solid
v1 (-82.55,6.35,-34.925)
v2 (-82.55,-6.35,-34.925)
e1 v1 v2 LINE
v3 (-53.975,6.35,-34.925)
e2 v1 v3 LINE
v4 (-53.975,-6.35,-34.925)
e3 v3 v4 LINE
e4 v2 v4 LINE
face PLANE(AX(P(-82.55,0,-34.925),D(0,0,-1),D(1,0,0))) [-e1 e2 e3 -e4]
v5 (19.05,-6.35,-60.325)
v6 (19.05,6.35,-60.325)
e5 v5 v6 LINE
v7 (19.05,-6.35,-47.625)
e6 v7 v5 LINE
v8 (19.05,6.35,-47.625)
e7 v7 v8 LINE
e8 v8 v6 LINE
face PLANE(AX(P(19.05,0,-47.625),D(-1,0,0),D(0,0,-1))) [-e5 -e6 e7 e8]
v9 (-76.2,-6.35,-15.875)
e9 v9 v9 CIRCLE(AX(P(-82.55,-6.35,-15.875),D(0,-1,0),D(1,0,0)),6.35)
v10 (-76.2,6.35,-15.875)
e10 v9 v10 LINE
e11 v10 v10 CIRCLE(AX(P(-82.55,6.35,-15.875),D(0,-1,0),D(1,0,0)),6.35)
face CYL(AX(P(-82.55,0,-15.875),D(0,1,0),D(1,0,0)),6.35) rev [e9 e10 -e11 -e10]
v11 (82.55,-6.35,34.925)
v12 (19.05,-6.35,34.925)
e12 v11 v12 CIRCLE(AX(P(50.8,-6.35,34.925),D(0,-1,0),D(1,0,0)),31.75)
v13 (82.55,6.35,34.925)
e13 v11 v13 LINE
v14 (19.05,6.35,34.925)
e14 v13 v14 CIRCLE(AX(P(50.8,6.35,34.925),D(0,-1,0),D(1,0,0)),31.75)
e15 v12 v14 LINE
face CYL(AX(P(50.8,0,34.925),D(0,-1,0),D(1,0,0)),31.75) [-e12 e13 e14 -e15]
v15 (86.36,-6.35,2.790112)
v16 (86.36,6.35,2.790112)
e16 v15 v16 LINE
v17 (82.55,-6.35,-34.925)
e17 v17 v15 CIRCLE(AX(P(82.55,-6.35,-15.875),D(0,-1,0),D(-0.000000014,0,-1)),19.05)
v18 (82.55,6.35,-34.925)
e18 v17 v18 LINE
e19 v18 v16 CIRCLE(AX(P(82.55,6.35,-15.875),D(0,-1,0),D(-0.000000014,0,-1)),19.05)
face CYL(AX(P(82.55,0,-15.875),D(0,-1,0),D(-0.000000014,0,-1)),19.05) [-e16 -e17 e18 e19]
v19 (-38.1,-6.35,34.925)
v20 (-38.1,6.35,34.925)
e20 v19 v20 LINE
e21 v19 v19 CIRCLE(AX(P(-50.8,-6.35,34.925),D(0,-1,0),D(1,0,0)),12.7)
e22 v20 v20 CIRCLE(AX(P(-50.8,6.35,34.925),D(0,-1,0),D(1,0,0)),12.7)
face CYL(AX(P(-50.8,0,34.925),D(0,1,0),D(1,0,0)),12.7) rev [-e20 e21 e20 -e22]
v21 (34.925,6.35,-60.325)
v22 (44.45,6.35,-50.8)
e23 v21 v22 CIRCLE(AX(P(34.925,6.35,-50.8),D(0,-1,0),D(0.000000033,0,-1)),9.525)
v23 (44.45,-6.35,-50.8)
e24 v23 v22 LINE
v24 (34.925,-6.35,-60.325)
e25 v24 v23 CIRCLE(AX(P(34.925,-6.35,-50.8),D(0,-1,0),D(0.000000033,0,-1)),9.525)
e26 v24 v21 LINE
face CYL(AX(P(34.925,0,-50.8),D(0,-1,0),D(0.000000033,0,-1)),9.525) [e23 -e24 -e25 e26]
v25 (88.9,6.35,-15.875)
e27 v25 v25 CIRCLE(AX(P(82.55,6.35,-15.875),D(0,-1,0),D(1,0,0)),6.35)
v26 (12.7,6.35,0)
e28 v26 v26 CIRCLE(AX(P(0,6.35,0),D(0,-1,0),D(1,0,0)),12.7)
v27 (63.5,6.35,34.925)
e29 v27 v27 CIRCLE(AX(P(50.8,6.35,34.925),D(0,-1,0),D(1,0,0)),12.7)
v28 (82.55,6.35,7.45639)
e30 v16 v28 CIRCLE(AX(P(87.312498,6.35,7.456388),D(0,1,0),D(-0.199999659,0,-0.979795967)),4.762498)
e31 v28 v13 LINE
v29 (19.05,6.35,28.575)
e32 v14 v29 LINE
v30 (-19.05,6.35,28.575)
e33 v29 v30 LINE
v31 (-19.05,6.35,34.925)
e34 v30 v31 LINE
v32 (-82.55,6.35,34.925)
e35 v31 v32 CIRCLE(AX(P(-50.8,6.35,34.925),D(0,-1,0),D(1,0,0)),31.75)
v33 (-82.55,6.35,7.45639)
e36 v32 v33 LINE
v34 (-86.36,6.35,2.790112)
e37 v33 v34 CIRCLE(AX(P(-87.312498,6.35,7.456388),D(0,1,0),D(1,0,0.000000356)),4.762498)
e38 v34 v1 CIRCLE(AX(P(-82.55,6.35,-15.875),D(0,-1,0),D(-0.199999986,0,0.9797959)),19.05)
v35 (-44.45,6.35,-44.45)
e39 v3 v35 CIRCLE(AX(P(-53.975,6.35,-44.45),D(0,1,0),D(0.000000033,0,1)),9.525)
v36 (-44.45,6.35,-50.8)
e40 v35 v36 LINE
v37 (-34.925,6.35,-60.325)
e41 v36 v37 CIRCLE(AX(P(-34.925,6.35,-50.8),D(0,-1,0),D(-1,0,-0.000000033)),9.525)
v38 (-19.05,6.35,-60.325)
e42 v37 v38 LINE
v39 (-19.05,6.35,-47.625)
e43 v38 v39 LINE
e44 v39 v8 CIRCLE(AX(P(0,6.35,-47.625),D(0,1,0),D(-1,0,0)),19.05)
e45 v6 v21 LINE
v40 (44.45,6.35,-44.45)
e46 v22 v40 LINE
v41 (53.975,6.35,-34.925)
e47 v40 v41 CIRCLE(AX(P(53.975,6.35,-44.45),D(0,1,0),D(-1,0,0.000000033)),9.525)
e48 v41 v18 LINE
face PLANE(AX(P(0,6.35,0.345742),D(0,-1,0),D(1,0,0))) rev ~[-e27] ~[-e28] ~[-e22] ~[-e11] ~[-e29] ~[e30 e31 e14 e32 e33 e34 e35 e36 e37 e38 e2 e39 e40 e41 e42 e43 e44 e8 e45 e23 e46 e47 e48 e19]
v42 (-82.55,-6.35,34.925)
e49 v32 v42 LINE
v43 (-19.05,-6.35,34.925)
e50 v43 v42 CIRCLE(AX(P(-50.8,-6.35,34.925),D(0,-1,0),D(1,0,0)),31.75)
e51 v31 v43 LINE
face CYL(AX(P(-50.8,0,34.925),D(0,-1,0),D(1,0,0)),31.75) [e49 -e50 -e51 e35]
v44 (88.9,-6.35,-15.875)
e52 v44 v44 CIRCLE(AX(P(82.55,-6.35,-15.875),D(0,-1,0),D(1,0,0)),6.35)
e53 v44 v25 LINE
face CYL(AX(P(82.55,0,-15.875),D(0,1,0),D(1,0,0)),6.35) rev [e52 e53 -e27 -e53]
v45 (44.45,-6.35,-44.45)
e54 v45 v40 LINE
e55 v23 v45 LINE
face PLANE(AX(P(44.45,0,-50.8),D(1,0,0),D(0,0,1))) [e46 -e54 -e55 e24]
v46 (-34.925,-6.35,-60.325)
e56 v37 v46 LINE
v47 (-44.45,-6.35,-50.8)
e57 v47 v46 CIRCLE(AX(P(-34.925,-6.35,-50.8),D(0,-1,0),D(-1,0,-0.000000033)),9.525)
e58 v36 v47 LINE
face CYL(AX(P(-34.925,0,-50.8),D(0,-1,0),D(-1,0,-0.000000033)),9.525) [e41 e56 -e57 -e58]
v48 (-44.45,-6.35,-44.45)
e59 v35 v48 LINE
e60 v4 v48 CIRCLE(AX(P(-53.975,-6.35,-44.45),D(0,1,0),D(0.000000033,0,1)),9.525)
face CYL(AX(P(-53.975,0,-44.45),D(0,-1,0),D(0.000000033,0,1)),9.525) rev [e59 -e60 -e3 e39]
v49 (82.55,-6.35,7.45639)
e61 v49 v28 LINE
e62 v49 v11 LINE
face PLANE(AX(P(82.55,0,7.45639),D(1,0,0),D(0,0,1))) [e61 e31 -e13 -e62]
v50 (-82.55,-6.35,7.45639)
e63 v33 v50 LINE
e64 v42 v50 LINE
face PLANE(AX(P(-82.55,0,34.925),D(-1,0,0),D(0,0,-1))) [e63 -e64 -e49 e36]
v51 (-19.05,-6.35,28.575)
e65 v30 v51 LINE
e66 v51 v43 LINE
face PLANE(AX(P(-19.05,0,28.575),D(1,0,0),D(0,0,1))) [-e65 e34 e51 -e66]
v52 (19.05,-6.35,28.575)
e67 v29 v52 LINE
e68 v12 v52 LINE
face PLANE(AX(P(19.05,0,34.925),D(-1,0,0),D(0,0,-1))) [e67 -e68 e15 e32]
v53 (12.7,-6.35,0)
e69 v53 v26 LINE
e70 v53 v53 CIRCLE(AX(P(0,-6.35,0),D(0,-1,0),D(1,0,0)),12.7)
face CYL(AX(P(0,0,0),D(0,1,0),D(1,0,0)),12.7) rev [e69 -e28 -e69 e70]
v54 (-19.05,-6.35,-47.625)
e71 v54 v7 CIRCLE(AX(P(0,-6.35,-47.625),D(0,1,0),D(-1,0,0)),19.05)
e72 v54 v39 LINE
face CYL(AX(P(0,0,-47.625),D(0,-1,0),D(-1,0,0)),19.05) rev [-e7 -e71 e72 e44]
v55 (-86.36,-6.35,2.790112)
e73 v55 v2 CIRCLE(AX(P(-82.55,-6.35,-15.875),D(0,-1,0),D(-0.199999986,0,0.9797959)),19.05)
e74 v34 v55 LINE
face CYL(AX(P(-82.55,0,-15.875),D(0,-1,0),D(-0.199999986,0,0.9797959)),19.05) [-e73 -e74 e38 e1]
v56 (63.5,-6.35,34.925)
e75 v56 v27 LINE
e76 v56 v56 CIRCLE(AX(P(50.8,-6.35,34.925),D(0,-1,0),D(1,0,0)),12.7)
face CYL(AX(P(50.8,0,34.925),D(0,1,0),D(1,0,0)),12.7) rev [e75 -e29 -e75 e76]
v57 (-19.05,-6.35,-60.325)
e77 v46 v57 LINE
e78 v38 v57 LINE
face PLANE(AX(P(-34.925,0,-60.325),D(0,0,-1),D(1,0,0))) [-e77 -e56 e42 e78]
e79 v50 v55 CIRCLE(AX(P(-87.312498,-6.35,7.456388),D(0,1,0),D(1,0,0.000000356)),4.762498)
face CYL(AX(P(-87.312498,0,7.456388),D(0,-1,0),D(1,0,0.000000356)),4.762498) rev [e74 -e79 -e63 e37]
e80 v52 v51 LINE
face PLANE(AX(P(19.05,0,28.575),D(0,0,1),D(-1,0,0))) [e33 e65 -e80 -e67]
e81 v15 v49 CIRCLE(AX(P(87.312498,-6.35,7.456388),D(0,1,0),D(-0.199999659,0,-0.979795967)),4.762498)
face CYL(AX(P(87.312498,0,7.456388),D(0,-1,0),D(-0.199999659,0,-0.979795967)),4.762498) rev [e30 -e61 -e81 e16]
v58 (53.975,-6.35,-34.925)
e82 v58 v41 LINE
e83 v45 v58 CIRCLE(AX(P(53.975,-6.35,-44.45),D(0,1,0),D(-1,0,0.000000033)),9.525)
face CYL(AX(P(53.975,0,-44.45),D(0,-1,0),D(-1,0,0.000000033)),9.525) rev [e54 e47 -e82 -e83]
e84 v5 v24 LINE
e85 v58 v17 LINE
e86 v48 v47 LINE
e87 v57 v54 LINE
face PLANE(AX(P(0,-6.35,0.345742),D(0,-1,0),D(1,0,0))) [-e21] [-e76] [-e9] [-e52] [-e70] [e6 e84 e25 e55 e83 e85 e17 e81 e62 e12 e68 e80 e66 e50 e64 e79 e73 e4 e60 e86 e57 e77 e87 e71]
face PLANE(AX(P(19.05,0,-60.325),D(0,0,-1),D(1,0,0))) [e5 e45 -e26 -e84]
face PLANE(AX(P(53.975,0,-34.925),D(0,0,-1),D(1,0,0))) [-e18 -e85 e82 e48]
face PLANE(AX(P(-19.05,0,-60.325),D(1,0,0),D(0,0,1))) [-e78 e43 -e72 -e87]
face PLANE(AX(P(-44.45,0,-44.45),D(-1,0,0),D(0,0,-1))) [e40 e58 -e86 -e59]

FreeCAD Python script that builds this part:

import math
import FreeCAD as App
import Part
import Sketcher
Q = App.Units.Quantity

doc = App.newDocument("Part")
params = doc.addObject("Spreadsheet::Sheet", "Params")
for row, (alias, value) in enumerate([
    ("sketch1_diameter", "1 in"),
    ("sketch1_diameter2", "0.5 in"),
    ("sketch1_radius", "1.25 in"),
    ("sketch1_radius2", "0.75 in"),
    ("sketch1_height", "0.5 in"),
    ("pad1_length", "0.5 in"),
], start=1):
    params.set(f"A{row}", alias)
    params.set(f"B{row}", "=" + value)
    params.setAlias(f"B{row}", alias)

body = doc.addObject("PartDesign::Body", "Body")

sketch1 = body.newObject("Sketcher::SketchObject", "Sketch")
sketch1.AttachmentSupport = (doc.getObject("XZ_Plane"), [""])
sketch1.MapMode = "FlatFace"
sketch1.addGeometry([
    Part.LineSegment(App.Vector(19.1, 34.9, 0), App.Vector(19.1, 28.6, 0)),
    Part.LineSegment(App.Vector(19.1, 28.6, 0), App.Vector(-19.1, 28.6, 0)),
    Part.LineSegment(App.Vector(-19.1, 28.6, 0), App.Vector(-19.1, 34.9, 0)),
    Part.ArcOfCircle(Part.Circle(App.Vector(-50.8, 34.9, 0), App.Vector(0, 0, 1), 31.8), math.radians(0), math.radians(180)),
    Part.LineSegment(App.Vector(-82.5, 34.9, 0), App.Vector(-82.5, 7.5, 0)),
    Part.ArcOfCircle(Part.Circle(App.Vector(-87.3, 7.5, 0), App.Vector(0, 0, 1), 4.8), math.radians(-78), math.radians(0)),
    Part.ArcOfCircle(Part.Circle(App.Vector(-82.6, -15.9, 0), App.Vector(0, 0, 1), 19.1), math.radians(102), math.radians(270)),
    Part.LineSegment(App.Vector(-82.5, -34.9, 0), App.Vector(-54, -34.9, 0)),
    Part.ArcOfCircle(Part.Circle(App.Vector(-54, -44.5, 0), App.Vector(0, 0, 1), 9.5), math.radians(0), math.radians(90)),
    Part.LineSegment(App.Vector(-44.5, -44.5, 0), App.Vector(-44.5, -50.8, 0)),
    Part.ArcOfCircle(Part.Circle(App.Vector(-34.9, -50.8, 0), App.Vector(0, 0, 1), 9.5), math.radians(-180), math.radians(-90)),
    Part.LineSegment(App.Vector(-34.9, -60.3, 0), App.Vector(-19.1, -60.3, 0)),
    Part.LineSegment(App.Vector(-19.1, -60.3, 0), App.Vector(-19.1, -47.6, 0)),
    Part.ArcOfCircle(Part.Circle(App.Vector(0, -47.6, 0), App.Vector(0, 0, 1), 19.1), math.radians(0), math.radians(180)),
    Part.LineSegment(App.Vector(19.1, -47.6, 0), App.Vector(19.1, -60.3, 0)),
    Part.LineSegment(App.Vector(19.1, -60.3, 0), App.Vector(34.9, -60.3, 0)),
    Part.ArcOfCircle(Part.Circle(App.Vector(34.9, -50.8, 0), App.Vector(0, 0, 1), 9.5), math.radians(-90), math.radians(0)),
    Part.LineSegment(App.Vector(44.5, -50.8, 0), App.Vector(44.5, -44.5, 0)),
    Part.ArcOfCircle(Part.Circle(App.Vector(54, -44.5, 0), App.Vector(0, 0, 1), 9.5), math.radians(90), math.radians(180)),
    Part.LineSegment(App.Vector(54, -34.9, 0), App.Vector(82.5, -34.9, 0)),
    Part.ArcOfCircle(Part.Circle(App.Vector(82.6, -15.9, 0), App.Vector(0, 0, 1), 19.1), math.radians(-90), math.radians(78)),
    Part.ArcOfCircle(Part.Circle(App.Vector(87.3, 7.5, 0), App.Vector(0, 0, 1), 4.8), math.radians(180), math.radians(258)),
    Part.LineSegment(App.Vector(82.5, 7.5, 0), App.Vector(82.5, 34.9, 0)),
    Part.ArcOfCircle(Part.Circle(App.Vector(50.8, 34.9, 0), App.Vector(0, 0, 1), 31.8), math.radians(0), math.radians(180)),
    Part.Circle(App.Vector(-82.5, -15.9, 0), App.Vector(0, 0, 1), 6.3),
    Part.Circle(App.Vector(82.5, -15.9, 0), App.Vector(0, 0, 1), 6.3),
    Part.Circle(App.Vector(0, 0, 0), App.Vector(0, 0, 1), 12.7),
    Part.Circle(App.Vector(-50.8, 34.9, 0), App.Vector(0, 0, 1), 12.7),
    Part.Circle(App.Vector(50.8, 34.9, 0), App.Vector(0, 0, 1), 12.7),
], False)
sketch1.addConstraint([
    Sketcher.Constraint("Coincident", 0, 2, 1, 1),
    Sketcher.Constraint("Coincident", 1, 2, 2, 1),
    Sketcher.Constraint("Tangent", 2, 2, 3, 1),
    Sketcher.Constraint("Tangent", 3, 2, 4, 1),
    Sketcher.Constraint("Tangent", 4, 2, 5, 2),
    Sketcher.Constraint("Tangent", 5, 1, 6, 1),
    Sketcher.Constraint("Tangent", 6, 2, 7, 1),
    Sketcher.Constraint("Tangent", 7, 2, 8, 2),
    Sketcher.Constraint("Tangent", 8, 1, 9, 1),
    Sketcher.Constraint("Tangent", 9, 2, 10, 1),
    Sketcher.Constraint("Tangent", 10, 2, 11, 1),
    Sketcher.Constraint("Coincident", 11, 2, 12, 1),
    Sketcher.Constraint("Tangent", 12, 2, 13, 2),
    Sketcher.Constraint("Tangent", 13, 1, 14, 1),
    Sketcher.Constraint("Coincident", 14, 2, 15, 1),
    Sketcher.Constraint("Tangent", 15, 2, 16, 1),
    Sketcher.Constraint("Tangent", 16, 2, 17, 1),
    Sketcher.Constraint("Tangent", 17, 2, 18, 2),
    Sketcher.Constraint("Tangent", 18, 1, 19, 1),
    Sketcher.Constraint("Tangent", 19, 2, 20, 1),
    Sketcher.Constraint("Tangent", 20, 2, 21, 2),
    Sketcher.Constraint("Tangent", 21, 1, 22, 1),
    Sketcher.Constraint("Tangent", 22, 2, 23, 1),
    Sketcher.Constraint("Tangent", 23, 2, 0, 1),
    Sketcher.Constraint("Vertical", 0),
    Sketcher.Constraint("Horizontal", 1),
    Sketcher.Constraint("Vertical", 2),
    Sketcher.Constraint("Vertical", 4),
    Sketcher.Constraint("Horizontal", 7),
    Sketcher.Constraint("Vertical", 9),
    Sketcher.Constraint("Horizontal", 11),
    Sketcher.Constraint("Vertical", 12),
    Sketcher.Constraint("Vertical", 14),
    Sketcher.Constraint("Horizontal", 15),
    Sketcher.Constraint("Vertical", 17),
    Sketcher.Constraint("Horizontal", 19),
    Sketcher.Constraint("Vertical", 22),
    Sketcher.Constraint("Coincident", 26, 3, -1, 1),
    Sketcher.Constraint("Coincident", 24, 3, 6, 3),
    Sketcher.Constraint("Coincident", 25, 3, 20, 3),
    Sketcher.Constraint("Coincident", 27, 3, 3, 3),
    Sketcher.Constraint("Coincident", 28, 3, 23, 3),
    Sketcher.Constraint("Equal", 8, 10),
    Sketcher.Constraint("Equal", 6, 13),
    Sketcher.Constraint("Equal", 10, 16),
    Sketcher.Constraint("Equal", 16, 18),
    Sketcher.Constraint("Equal", 13, 20),
    Sketcher.Constraint("Equal", 5, 21),
    Sketcher.Constraint("Equal", 3, 23),
    Sketcher.Constraint("Equal", 24, 25),
    Sketcher.Constraint("Equal", 26, 27),
    Sketcher.Constraint("Equal", 27, 28),
    Sketcher.Constraint("Symmetric", 3, 2, 19, 2, -1, 1),
    Sketcher.Constraint("Symmetric", 6, 2, 22, 2, -1, 1),
    Sketcher.Constraint("Symmetric", 10, 3, 16, 3, -2),
    Sketcher.Constraint("Symmetric", 6, 3, 20, 3, -2),
    Sketcher.Constraint("PointOnObject", 13, 3, -2),
    Sketcher.Constraint("Vertical", 2, 2, 11, 2),
    Sketcher.Constraint("Equal", 2, 9),
    Sketcher.Constraint("Diameter", 26, Q("1 in")),
    Sketcher.Constraint("Diameter", 24, Q("0.5 in")),
    Sketcher.Constraint("Radius", 3, Q("1.25 in")),
    Sketcher.Constraint("Radius", 6, Q("0.75 in")),
    Sketcher.Constraint("DistanceY", 12, 1, 12, 2, Q("0.5 in")),
    Sketcher.Constraint("DistanceY", 10, 3, -1, 1, Q("2 in")),
    Sketcher.Constraint("Radius", 5, Q("0.1874999 in")),
    Sketcher.Constraint("Radius", 8, Q("0.375 in")),
    Sketcher.Constraint("DistanceY", 6, 3, 3, 3, Q("2 in")),
    Sketcher.Constraint("DistanceX", 9, 2, 11, 2, Q("1 in")),
])
sketch1.setExpression("Constraints[59]", "Params.sketch1_diameter")
sketch1.setExpression("Constraints[60]", "Params.sketch1_diameter2")
sketch1.setExpression("Constraints[61]", "Params.sketch1_radius")
sketch1.setExpression("Constraints[62]", "Params.sketch1_radius2")
sketch1.setExpression("Constraints[63]", "Params.sketch1_height")
pad1 = body.newObject("PartDesign::Pad", "Pad")
pad1.Profile = sketch1
pad1.setExpression("Length", "Params.pad1_length")
pad1.Midplane = True

doc.recompute()
